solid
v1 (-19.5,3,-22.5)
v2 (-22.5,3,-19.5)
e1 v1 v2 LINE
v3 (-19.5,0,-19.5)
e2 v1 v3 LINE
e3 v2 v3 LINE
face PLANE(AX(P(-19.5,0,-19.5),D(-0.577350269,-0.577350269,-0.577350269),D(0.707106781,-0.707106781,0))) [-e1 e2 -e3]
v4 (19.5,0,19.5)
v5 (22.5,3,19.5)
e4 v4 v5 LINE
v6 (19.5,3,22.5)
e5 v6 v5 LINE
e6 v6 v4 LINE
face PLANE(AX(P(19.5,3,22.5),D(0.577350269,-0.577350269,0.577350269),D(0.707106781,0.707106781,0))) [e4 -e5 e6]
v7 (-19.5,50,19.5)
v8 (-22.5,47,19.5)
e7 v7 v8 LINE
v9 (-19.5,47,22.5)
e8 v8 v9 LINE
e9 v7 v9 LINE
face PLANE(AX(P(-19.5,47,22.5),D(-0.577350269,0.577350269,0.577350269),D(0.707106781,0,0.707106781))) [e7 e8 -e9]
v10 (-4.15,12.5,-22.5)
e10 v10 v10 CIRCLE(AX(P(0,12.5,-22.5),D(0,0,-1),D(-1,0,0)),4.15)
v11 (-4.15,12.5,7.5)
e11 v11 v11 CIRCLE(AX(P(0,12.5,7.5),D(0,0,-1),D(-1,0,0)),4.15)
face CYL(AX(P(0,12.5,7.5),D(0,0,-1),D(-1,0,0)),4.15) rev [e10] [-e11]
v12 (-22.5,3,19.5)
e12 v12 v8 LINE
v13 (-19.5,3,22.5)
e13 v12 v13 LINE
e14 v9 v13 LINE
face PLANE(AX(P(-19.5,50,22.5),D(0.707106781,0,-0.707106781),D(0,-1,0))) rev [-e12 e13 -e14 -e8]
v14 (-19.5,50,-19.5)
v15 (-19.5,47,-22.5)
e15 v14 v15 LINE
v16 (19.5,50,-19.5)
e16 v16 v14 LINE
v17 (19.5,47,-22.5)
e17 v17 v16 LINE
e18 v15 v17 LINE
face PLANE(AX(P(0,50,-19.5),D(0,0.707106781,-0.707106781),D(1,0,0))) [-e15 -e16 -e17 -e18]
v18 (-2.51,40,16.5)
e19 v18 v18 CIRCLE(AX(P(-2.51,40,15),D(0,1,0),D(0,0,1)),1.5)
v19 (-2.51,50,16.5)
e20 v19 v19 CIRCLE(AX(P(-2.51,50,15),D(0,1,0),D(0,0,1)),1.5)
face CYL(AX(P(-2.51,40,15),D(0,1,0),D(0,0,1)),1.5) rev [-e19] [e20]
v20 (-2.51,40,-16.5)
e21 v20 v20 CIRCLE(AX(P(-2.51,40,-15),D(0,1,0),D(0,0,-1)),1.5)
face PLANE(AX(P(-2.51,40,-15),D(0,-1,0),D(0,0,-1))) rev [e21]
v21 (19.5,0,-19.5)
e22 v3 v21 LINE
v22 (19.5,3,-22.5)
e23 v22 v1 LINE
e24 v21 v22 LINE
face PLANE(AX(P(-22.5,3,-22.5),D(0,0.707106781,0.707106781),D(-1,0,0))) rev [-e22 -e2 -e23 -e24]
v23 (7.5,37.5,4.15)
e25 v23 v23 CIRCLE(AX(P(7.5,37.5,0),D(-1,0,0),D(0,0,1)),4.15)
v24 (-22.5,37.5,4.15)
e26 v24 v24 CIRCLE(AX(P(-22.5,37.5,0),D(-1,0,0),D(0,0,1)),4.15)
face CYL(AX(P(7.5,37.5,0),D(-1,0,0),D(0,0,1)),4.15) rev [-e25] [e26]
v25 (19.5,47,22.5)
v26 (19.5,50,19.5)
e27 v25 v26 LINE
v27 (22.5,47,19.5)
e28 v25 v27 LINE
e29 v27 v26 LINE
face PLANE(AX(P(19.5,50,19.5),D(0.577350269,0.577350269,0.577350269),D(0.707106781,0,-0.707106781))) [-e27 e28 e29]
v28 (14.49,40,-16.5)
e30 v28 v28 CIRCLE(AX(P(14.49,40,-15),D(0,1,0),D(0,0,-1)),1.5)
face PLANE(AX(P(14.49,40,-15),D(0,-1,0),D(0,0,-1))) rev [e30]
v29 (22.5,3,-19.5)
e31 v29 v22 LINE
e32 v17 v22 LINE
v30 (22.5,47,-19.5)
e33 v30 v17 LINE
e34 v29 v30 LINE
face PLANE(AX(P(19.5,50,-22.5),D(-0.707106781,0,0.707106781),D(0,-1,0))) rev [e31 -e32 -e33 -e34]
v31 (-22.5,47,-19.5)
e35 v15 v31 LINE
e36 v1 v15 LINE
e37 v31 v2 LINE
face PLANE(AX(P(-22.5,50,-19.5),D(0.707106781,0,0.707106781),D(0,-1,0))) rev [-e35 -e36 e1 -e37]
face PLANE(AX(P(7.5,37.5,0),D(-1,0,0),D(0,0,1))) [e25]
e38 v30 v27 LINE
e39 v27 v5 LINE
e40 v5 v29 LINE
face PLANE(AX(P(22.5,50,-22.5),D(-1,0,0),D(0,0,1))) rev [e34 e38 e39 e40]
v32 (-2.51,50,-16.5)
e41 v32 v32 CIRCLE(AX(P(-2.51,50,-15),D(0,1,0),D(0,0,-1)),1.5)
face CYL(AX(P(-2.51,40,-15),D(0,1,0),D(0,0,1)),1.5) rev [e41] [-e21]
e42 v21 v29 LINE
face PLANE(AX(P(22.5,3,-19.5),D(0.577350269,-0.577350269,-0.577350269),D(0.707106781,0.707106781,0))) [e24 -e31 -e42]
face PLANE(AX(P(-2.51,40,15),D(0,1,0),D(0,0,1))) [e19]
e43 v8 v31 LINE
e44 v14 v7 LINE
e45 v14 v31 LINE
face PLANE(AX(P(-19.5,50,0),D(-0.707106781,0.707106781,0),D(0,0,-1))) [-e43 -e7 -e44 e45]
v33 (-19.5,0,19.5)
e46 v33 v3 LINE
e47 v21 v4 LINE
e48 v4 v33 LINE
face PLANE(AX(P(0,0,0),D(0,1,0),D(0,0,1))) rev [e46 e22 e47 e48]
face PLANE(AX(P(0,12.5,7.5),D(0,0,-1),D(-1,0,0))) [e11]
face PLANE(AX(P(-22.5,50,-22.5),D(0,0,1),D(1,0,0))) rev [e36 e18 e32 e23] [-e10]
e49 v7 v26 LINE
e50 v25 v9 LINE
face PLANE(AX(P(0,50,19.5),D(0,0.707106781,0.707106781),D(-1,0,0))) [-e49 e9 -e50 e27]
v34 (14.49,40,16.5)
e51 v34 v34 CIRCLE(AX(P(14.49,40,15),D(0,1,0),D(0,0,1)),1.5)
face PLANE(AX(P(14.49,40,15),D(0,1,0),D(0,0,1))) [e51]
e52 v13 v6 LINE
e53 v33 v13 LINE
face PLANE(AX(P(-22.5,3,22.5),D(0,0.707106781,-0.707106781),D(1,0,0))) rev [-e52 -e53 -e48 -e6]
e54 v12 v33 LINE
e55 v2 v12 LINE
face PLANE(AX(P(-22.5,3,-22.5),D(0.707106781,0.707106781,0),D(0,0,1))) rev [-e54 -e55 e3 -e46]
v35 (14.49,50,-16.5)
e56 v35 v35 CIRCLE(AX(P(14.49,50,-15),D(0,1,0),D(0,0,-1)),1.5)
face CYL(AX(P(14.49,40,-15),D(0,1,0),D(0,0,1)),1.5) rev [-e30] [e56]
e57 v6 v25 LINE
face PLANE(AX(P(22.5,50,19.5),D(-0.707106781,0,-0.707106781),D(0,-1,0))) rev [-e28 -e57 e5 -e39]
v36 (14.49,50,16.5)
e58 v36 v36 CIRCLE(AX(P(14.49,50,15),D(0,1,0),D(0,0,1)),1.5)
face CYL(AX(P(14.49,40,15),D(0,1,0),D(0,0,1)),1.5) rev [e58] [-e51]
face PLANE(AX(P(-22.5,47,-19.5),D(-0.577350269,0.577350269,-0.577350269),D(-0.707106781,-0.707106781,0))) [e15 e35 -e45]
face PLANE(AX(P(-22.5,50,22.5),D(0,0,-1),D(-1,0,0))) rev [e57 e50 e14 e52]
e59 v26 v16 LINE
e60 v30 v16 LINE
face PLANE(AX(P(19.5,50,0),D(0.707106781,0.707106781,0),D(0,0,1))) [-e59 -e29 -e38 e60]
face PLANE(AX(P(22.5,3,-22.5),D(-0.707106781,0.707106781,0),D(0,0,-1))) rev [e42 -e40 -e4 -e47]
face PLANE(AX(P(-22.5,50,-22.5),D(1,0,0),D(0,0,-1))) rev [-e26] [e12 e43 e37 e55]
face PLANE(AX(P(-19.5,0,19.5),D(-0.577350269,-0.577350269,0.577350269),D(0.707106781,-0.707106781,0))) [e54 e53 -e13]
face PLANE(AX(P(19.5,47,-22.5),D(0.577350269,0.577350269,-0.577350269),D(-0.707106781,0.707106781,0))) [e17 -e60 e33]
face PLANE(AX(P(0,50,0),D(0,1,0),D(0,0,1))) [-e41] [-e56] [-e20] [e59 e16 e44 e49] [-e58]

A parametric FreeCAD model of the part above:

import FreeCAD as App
import Part
import Sketcher

V = App.Vector


def edges_at(feature, points):
    """Names of the edges that pass closest to the given points."""
    edges = feature.Shape.Edges
    near = lambda p: min(range(len(edges)), key=lambda i: edges[i].distToShape(Part.Vertex(*p))[0])
    return sorted({f"Edge{near(p) + 1}" for p in points})


def add_polygon(sketch, points):
    """Adds a closed chain of lines whose ends are joined by coincident constraints."""
    first, n = sketch.GeometryCount, len(points)
    for a, b in zip(points, points[1:] + points[:1]):
        sketch.addGeometry(Part.LineSegment(App.Vector(*a, 0), App.Vector(*b, 0)), False)
    for i in range(n):
        sketch.addConstraint(Sketcher.Constraint("Coincident", first + i, 2, first + (i + 1) % n, 1))

doc = App.newDocument("Part")
body = doc.addObject("PartDesign::Body", "Body")

# Sketch on XZ plane
sketch1 = body.newObject("Sketcher::SketchObject", "Sketch")
sketch1.AttachmentSupport = (doc.getObject("XZ_Plane"), [""])
sketch1.MapMode = "FlatFace"
add_polygon(sketch1, [(-22, -22), (-22, 22), (22, 22), (22, -22)])  # lines 0-3
sketch1.addConstraint([
    Sketcher.Constraint("Vertical", 0),
    Sketcher.Constraint("Horizontal", 1),
    Sketcher.Constraint("Vertical", 2),
    Sketcher.Constraint("Horizontal", 3),
    Sketcher.Constraint("Symmetric", 0, 2, 2, 2, -1, 1),
    Sketcher.Constraint("Equal", 3, 0),
    Sketcher.Constraint("DistanceX", 1, 1, 1, 2, 45.0),
])
pad1 = body.newObject("PartDesign::Pad", "Pad")
pad1.Profile = sketch1
pad1.Length = 50
pad1.Reversed = True

# Sketch on XY plane
sketch2 = body.newObject("Sketcher::SketchObject", "Sketch001")
sketch2.AttachmentSupport = (doc.getObject("XY_Plane"), [""])
sketch2.MapMode = "FlatFace"
sketch2.AttachmentOffset = App.Placement(V(0, 0, -22.5), App.Rotation())
sketch2.addGeometry(Part.Circle(V(0, 12.5, 0), V(0, 0, 1), 4.2), False)
sketch2.addConstraint([
    Sketcher.Constraint("PointOnObject", 0, 3, -2),
    Sketcher.Constraint("Diameter", 0, 8.3),
    Sketcher.Constraint("DistanceY", -1, 1, 0, 3, 12.5),
])
pocket1 = body.newObject("PartDesign::Pocket", "Pocket")
pocket1.Profile = sketch2
pocket1.Length = 30
pocket1.Reversed = True

# Sketch on YZ plane
sketch3 = body.newObject("Sketcher::SketchObject", "Sketch002")
sketch3.AttachmentSupport = (doc.getObject("YZ_Plane"), [""])
sketch3.MapMode = "FlatFace"
sketch3.AttachmentOffset = App.Placement(V(0, 0, -22.5), App.Rotation())
sketch3.addGeometry(Part.Circle(V(37.5, 0, 0), V(0, 0, 1), 4.2), False)
sketch3.addConstraint([
    Sketcher.Constraint("PointOnObject", 0, 3, -1),
    Sketcher.Constraint("Diameter", 0, 8.3),
    Sketcher.Constraint("DistanceX", -1, 1, 0, 3, 37.5),
])
pocket2 = body.newObject("PartDesign::Pocket", "Pocket001")
pocket2.Profile = sketch3
pocket2.Length = 30
pocket2.Reversed = True
doc.recompute()

chamfer = body.newObject("PartDesign::Chamfer", "Chamfer")
chamfer.Base = (pocket2, edges_at(pocket2, [
    (-22.5, 50, 0),
    (0, 50, 22.5),
    (22.5, 50, 0),
    (0, 0, 22.5),
    (-22.5, 0, 0),
    (0, 0, -22.5),
    (22.5, 0, 0),
    (22.5, 25, 22.5),
    (-22.5, 25, 22.5),
    (-22.5, 25, -22.5),
    (22.5, 25, -22.5),
    (0, 50, -22.5),
]))
chamfer.Size = 3

# Sketch on XZ plane
sketch4 = body.newObject("Sketcher::SketchObject", "Sketch003")
sketch4.AttachmentSupport = (doc.getObject("XZ_Plane"), [""])
sketch4.MapMode = "FlatFace"
sketch4.AttachmentOffset = App.Placement(V(0, 0, -50), App.Rotation())
sketch4.addGeometry([
    Part.Circle(V(-2.5, 15, 0), V(0, 0, 1), 1.5),
    Part.Circle(V(14.5, 15, 0), V(0, 0, 1), 1.5),
    Part.Circle(V(14.5, -15, 0), V(0, 0, 1), 1.5),
    Part.Circle(V(-2.5, -15, 0), V(0, 0, 1), 1.5),
], False)
sketch4.addConstraint([
    Sketcher.Constraint("Equal", 0, 1),
    Sketcher.Constraint("Equal", 1, 2),
    Sketcher.Constraint("Equal", 2, 3),
    Sketcher.Constraint("Symmetric", 1, 3, 2, 3, -1),
    Sketcher.Constraint("Symmetric", 0, 3, 3, 3, -1),
    Sketcher.Constraint("Horizontal", 0, 3, 1, 3),
    Sketcher.Constraint("Diameter", 0, 3.0),
    Sketcher.Constraint("DistanceY", -1, 1, 0, 3, 15.0),
    Sketcher.Constraint("DistanceX", 0, 3, 1, 3, 17.0),
    Sketcher.Constraint("DistanceX", 0, 3, -1, 1, 2.51),
])
pocket3 = body.newObject("PartDesign::Pocket", "Pocket002")
pocket3.Profile = sketch4
pocket3.Length = 10
pocket3.Reversed = True

doc.recompute()
